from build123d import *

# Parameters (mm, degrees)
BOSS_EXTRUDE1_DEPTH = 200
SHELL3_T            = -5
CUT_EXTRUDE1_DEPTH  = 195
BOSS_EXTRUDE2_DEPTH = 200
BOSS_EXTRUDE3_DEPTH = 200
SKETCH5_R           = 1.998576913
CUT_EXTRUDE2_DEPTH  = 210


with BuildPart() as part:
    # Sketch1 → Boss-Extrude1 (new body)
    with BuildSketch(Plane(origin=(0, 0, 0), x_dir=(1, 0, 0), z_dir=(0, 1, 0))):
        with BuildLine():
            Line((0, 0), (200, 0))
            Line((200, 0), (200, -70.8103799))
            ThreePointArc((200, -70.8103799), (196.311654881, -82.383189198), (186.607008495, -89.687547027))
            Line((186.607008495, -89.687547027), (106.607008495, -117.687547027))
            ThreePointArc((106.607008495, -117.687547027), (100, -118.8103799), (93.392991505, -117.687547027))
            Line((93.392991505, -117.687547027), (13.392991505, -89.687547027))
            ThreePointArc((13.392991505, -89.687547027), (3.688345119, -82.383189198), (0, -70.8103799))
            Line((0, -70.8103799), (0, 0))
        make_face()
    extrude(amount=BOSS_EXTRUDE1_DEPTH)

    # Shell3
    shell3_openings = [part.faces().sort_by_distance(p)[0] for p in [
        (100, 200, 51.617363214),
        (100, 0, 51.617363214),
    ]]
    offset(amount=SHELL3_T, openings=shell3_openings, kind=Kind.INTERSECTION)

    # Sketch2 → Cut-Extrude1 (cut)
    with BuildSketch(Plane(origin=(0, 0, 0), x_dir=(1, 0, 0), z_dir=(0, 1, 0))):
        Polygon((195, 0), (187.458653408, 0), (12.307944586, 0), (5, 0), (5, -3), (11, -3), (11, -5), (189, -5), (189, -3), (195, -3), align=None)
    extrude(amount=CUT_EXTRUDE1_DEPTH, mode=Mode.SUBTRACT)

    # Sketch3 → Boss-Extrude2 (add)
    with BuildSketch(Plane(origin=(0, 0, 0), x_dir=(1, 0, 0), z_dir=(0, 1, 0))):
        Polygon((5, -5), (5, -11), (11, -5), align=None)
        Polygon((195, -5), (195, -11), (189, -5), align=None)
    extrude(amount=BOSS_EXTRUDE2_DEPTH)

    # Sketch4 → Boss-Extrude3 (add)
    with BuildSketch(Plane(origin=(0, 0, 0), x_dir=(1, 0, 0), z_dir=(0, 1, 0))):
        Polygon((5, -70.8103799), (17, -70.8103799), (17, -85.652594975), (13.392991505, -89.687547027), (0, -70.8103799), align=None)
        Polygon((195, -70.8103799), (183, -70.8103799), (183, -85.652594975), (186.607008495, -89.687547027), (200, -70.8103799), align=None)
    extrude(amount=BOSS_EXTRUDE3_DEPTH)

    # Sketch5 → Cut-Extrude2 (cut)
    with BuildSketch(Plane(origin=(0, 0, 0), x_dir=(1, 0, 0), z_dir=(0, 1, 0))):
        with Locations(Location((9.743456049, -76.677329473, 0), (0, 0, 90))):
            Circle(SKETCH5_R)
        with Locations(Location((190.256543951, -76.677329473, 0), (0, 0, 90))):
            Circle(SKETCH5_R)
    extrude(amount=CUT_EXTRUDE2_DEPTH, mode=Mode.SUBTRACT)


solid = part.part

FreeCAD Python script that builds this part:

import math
import FreeCAD as App
import Part
import Sketcher

V = App.Vector


def faces_at(feature, points):
    """Names of the faces that lie closest to the given points."""
    faces = feature.Shape.Faces
    near = lambda p: min(range(len(faces)), key=lambda i: faces[i].distToShape(Part.Vertex(*p))[0])
    return sorted({f"Face{near(p) + 1}" for p in points})

doc = App.newDocument("Part")
body = doc.addObject("PartDesign::Body", "Body")

# Sketch on XZ plane
sketch1 = body.newObject("Sketcher::SketchObject", "Sketch")
sketch1.AttachmentSupport = (doc.getObject("XZ_Plane"), [""])
sketch1.MapMode = "FlatFace"
sketch1.addGeometry(Part.LineSegment(V(200, 0, 0), V(0, 0, 0)), False)
sketch1.addGeometry(Part.LineSegment(V(0, 0, 0), V(0, 71, 0)), False)
sketch1.addGeometry(Part.ArcOfCircle(Part.Circle(V(20, 71, 0), V(0, 0, 1), 20), math.radians(109), math.radians(180)), False)
sketch1.addGeometry(Part.LineSegment(V(13, 90, 0), V(93, 118, 0)), False)
sketch1.addGeometry(Part.ArcOfCircle(Part.Circle(V(100, 99, 0), V(0, 0, 1), 20), math.radians(71), math.radians(109)), False)
sketch1.addGeometry(Part.LineSegment(V(107, 118, 0), V(187, 90, 0)), False)
sketch1.addGeometry(Part.ArcOfCircle(Part.Circle(V(180, 71, 0), V(0, 0, 1), 20), math.radians(0), math.radians(71)), False)
sketch1.addGeometry(Part.LineSegment(V(200, 71, 0), V(200, 0, 0)), False)
sketch1.addConstraint(Sketcher.Constraint("Coincident", 0, 2, 1, 1))
sketch1.addConstraint(Sketcher.Constraint("Tangent", 1, 2, 2, 2))
sketch1.addConstraint(Sketcher.Constraint("Tangent", 2, 1, 3, 1))
sketch1.addConstraint(Sketcher.Constraint("Tangent", 3, 2, 4, 2))
sketch1.addConstraint(Sketcher.Constraint("Tangent", 4, 1, 5, 1))
sketch1.addConstraint(Sketcher.Constraint("Tangent", 5, 2, 6, 2))
sketch1.addConstraint(Sketcher.Constraint("Tangent", 6, 1, 7, 1))
sketch1.addConstraint(Sketcher.Constraint("Coincident", 7, 2, 0, 1))
sketch1.addConstraint(Sketcher.Constraint("Horizontal", 0))
sketch1.addConstraint(Sketcher.Constraint("Vertical", 1))
sketch1.addConstraint(Sketcher.Constraint("Vertical", 7))
sketch1.addConstraint(Sketcher.Constraint("Coincident", 0, 2, -1, 1))
sketch1.addConstraint(Sketcher.Constraint("Equal", 2, 4))
sketch1.addConstraint(Sketcher.Constraint("Equal", 4, 6))
sketch1.addConstraint(Sketcher.Constraint("Horizontal", 2, 3, 6, 3))
sketch1.addConstraint(Sketcher.Constraint("Horizontal", 3, 2, 4, 1))
sketch1.addConstraint(Sketcher.Constraint("Radius", 2, 20.0))
sketch1.addConstraint(Sketcher.Constraint("DistanceX", 0, 2, 0, 1, 200.0))
sketch1.addConstraint(Sketcher.Constraint("DistanceY", 2, 3, 4, 3, 28.0))
sketch1.addConstraint(Sketcher.Constraint("DistanceY", 1, 1, 1, 2, 70.81038))
pad1 = body.newObject("PartDesign::Pad", "Pad")
pad1.Profile = sketch1
pad1.Length = 200
pad1.Reversed = True
doc.recompute()

thickness = body.newObject("PartDesign::Thickness", "Thickness")
thickness.Base = (pad1, faces_at(pad1, [(100, 200, 59.405), (100, 0, 59.405)]))
thickness.Value = 5
thickness.Reversed = True
thickness.Join = "Intersection"

# Sketch on XZ plane
sketch2 = body.newObject("Sketcher::SketchObject", "Sketch001")
sketch2.AttachmentSupport = (doc.getObject("XZ_Plane"), [""])
sketch2.MapMode = "FlatFace"
sketch2.addGeometry(Part.LineSegment(V(195, 0, 0), V(5, 0, 0)), False)
sketch2.addGeometry(Part.LineSegment(V(5, 0, 0), V(5, 3, 0)), False)
sketch2.addGeometry(Part.LineSegment(V(5, 3, 0), V(11, 3, 0)), False)
sketch2.addGeometry(Part.LineSegment(V(11, 3, 0), V(11, 5, 0)), False)
sketch2.addGeometry(Part.LineSegment(V(11, 5, 0), V(189, 5, 0)), False)
sketch2.addGeometry(Part.LineSegment(V(189, 5, 0), V(189, 3, 0)), False)
sketch2.addGeometry(Part.LineSegment(V(189, 3, 0), V(195, 3, 0)), False)
sketch2.addGeometry(Part.LineSegment(V(195, 3, 0), V(195, 0, 0)), False)
sketch2.addConstraint(Sketcher.Constraint("Coincident", 0, 2, 1, 1))
sketch2.addConstraint(Sketcher.Constraint("Coincident", 1, 2, 2, 1))
sketch2.addConstraint(Sketcher.Constraint("Coincident", 2, 2, 3, 1))
sketch2.addConstraint(Sketcher.Constraint("Coincident", 3, 2, 4, 1))
sketch2.addConstraint(Sketcher.Constraint("Coincident", 4, 2, 5, 1))
sketch2.addConstraint(Sketcher.Constraint("Coincident", 5, 2, 6, 1))
sketch2.addConstraint(Sketcher.Constraint("Coincident", 6, 2, 7, 1))
sketch2.addConstraint(Sketcher.Constraint("Coincident", 7, 2, 0, 1))
sketch2.addConstraint(Sketcher.Constraint("Horizontal", 0))
sketch2.addConstraint(Sketcher.Constraint("Vertical", 1))
sketch2.addConstraint(Sketcher.Constraint("Horizontal", 2))
sketch2.addConstraint(Sketcher.Constraint("Vertical", 3))
sketch2.addConstraint(Sketcher.Constraint("Horizontal", 4))
sketch2.addConstraint(Sketcher.Constraint("Vertical", 5))
sketch2.addConstraint(Sketcher.Constraint("Horizontal", 6))
sketch2.addConstraint(Sketcher.Constraint("Vertical", 7))
sketch2.addConstraint(Sketcher.Constraint("PointOnObject", 0, 2, -1))
sketch2.addConstraint(Sketcher.Constraint("Horizontal", 2, 2, 5, 2))
sketch2.addConstraint(Sketcher.Constraint("Equal", 2, 6))
sketch2.addConstraint(Sketcher.Constraint("DistanceX", 0, 2, 0, 1, 190.0))
sketch2.addConstraint(Sketcher.Constraint("DistanceX", 2, 1, 2, 2, 6.0))
sketch2.addConstraint(Sketcher.Constraint("DistanceY", 1, 1, 1, 2, 3.0))
sketch2.addConstraint(Sketcher.Constraint("DistanceY", 3, 1, 3, 2, 2.0))
sketch2.addConstraint(Sketcher.Constraint("DistanceX", -1, 1, 0, 2, 5.0))
pocket1 = body.newObject("PartDesign::Pocket", "Pocket")
pocket1.Profile = sketch2
pocket1.Length = 195

# Sketch on XZ plane
sketch3 = body.newObject("Sketcher::SketchObject", "Sketch002")
sketch3.AttachmentSupport = (doc.getObject("XZ_Plane"), [""])
sketch3.MapMode = "FlatFace"
sketch3.addGeometry(Part.LineSegment(V(5, 5, 0), V(5, 11, 0)), False)
sketch3.addGeometry(Part.LineSegment(V(5, 11, 0), V(11, 5, 0)), False)
sketch3.addGeometry(Part.LineSegment(V(11, 5, 0), V(5, 5, 0)), False)
sketch3.addGeometry(Part.LineSegment(V(195, 11, 0), V(195, 5, 0)), False)
sketch3.addGeometry(Part.LineSegment(V(195, 5, 0), V(189, 5, 0)), False)
sketch3.addGeometry(Part.LineSegment(V(189, 5, 0), V(195, 11, 0)), False)
sketch3.addConstraint(Sketcher.Constraint("Coincident", 0, 2, 1, 1))
sketch3.addConstraint(Sketcher.Constraint("Coincident", 1, 2, 2, 1))
sketch3.addConstraint(Sketcher.Constraint("Coincident", 2, 2, 0, 1))
sketch3.addConstraint(Sketcher.Constraint("Coincident", 3, 2, 4, 1))
sketch3.addConstraint(Sketcher.Constraint("Coincident", 4, 2, 5, 1))
sketch3.addConstraint(Sketcher.Constraint("Coincident", 5, 2, 3, 1))
sketch3.addConstraint(Sketcher.Constraint("Vertical", 0))
sketch3.addConstraint(Sketcher.Constraint("Horizontal", 2))
sketch3.addConstraint(Sketcher.Constraint("Vertical", 3))
sketch3.addConstraint(Sketcher.Constraint("Horizontal", 4))
sketch3.addConstraint(Sketcher.Constraint("Perpendicular", 1, 5))
sketch3.addConstraint(Sketcher.Constraint("Horizontal", 2, 2, 3, 2))
sketch3.addConstraint(Sketcher.Constraint("Horizontal", 0, 2, 5, 2))
sketch3.addConstraint(Sketcher.Constraint("Equal", 2, 4))
sketch3.addConstraint(Sketcher.Constraint("DistanceX", 2, 2, 2, 1, 6.0))
sketch3.addConstraint(Sketcher.Constraint("DistanceX", -1, 1, 0, 2, 5.0))
sketch3.addConstraint(Sketcher.Constraint("DistanceY", -1, 1, 0, 2, 11.0))
sketch3.addConstraint(Sketcher.Constraint("DistanceX", -1, 1, 3, 2, 195.0))
pad2 = body.newObject("PartDesign::Pad", "Pad001")
pad2.Profile = sketch3
pad2.Length = 200
pad2.Reversed = True

# Sketch on XZ plane
sketch4 = body.newObject("Sketcher::SketchObject", "Sketch003")
sketch4.AttachmentSupport = (doc.getObject("XZ_Plane"), [""])
sketch4.MapMode = "FlatFace"
sketch4.addGeometry(Part.LineSegment(V(17, 71, 0), V(0, 71, 0)), False)
sketch4.addGeometry(Part.LineSegment(V(0, 71, 0), V(13, 90, 0)), False)
sketch4.addGeometry(Part.LineSegment(V(13, 90, 0), V(17, 86, 0)), False)
sketch4.addGeometry(Part.LineSegment(V(17, 86, 0), V(17, 71, 0)), False)
sketch4.addGeometry(Part.LineSegment(V(183, 71, 0), V(183, 86, 0)), False)
sketch4.addGeometry(Part.LineSegment(V(183, 86, 0), V(187, 90, 0)), False)
sketch4.addGeometry(Part.LineSegment(V(187, 90, 0), V(200, 71, 0)), False)
sketch4.addGeometry(Part.LineSegment(V(200, 71, 0), V(183, 71, 0)), False)
sketch4.addConstraint(Sketcher.Constraint("Coincident", 0, 2, 1, 1))
sketch4.addConstraint(Sketcher.Constraint("Coincident", 1, 2, 2, 1))
sketch4.addConstraint(Sketcher.Constraint("Coincident", 2, 2, 3, 1))
sketch4.addConstraint(Sketcher.Constraint("Coincident", 3, 2, 0, 1))
sketch4.addConstraint(Sketcher.Constraint("Coincident", 4, 2, 5, 1))
sketch4.addConstraint(Sketcher.Constraint("Coincident", 5, 2, 6, 1))
sketch4.addConstraint(Sketcher.Constraint("Coincident", 6, 2, 7, 1))
sketch4.addConstraint(Sketcher.Constraint("Coincident", 7, 2, 4, 1))
sketch4.addConstraint(Sketcher.Constraint("Horizontal", 0))
sketch4.addConstraint(Sketcher.Constraint("Vertical", 3))
sketch4.addConstraint(Sketcher.Constraint("Vertical", 4))
sketch4.addConstraint(Sketcher.Constraint("Horizontal", 7))
sketch4.addConstraint(Sketcher.Constraint("PointOnObject", 0, 2, -2))
sketch4.addConstraint(Sketcher.Constraint("Horizontal", 2, 2, 4, 2))
sketch4.addConstraint(Sketcher.Constraint("Horizontal", 1, 2, 5, 2))
sketch4.addConstraint(Sketcher.Constraint("Horizontal", 3, 2, 6, 2))
sketch4.addConstraint(Sketcher.Constraint("Equal", 0, 7))
sketch4.addConstraint(Sketcher.Constraint("Equal", 2, 5))
sketch4.addConstraint(Sketcher.Constraint("DistanceX", 0, 2, 0, 1, 17.0))
sketch4.addConstraint(Sketcher.Constraint("DistanceX", -1, 1, 4, 2, 183.0))
sketch4.addConstraint(Sketcher.Constraint("Distance", 1, 23.145619))
sketch4.addConstraint(Sketcher.Constraint("Distance", 2, 5.412148))
sketch4.addConstraint(Sketcher.Constraint("DistanceY", 3, 2, 3, 1, 14.842215))
sketch4.addConstraint(Sketcher.Constraint("DistanceY", -1, 1, 0, 2, 70.81038))
pad3 = body.newObject("PartDesign::Pad", "Pad002")
pad3.Profile = sketch4
pad3.Length = 200
pad3.Reversed = True

# Sketch on XZ plane
sketch5 = body.newObject("Sketcher::SketchObject", "Sketch004")
sketch5.AttachmentSupport = (doc.getObject("XZ_Plane"), [""])
sketch5.MapMode = "FlatFace"
sketch5.addGeometry(Part.Circle(V(9.7, 76.7, 0), V(0, 0, 1), 2), False)
sketch5.addGeometry(Part.Circle(V(190.3, 76.7, 0), V(0, 0, 1), 2), False)
sketch5.addConstraint(Sketcher.Constraint("Equal", 0, 1))
sketch5.addConstraint(Sketcher.Constraint("Horizontal", 0, 3, 1, 3))
sketch5.addConstraint(Sketcher.Constraint("Diameter", 0, 3.997154))
sketch5.addConstraint(Sketcher.Constraint("DistanceY", -1, 1, 0, 3, 76.677329))
sketch5.addConstraint(Sketcher.Constraint("DistanceX", -1, 1, 0, 3, 9.743456))
sketch5.addConstraint(Sketcher.Constraint("DistanceX", -1, 1, 1, 3, 190.256544))
pocket2 = body.newObject("PartDesign::Pocket", "Pocket001")
pocket2.Profile = sketch5
pocket2.Length = 210

doc.recompute()
